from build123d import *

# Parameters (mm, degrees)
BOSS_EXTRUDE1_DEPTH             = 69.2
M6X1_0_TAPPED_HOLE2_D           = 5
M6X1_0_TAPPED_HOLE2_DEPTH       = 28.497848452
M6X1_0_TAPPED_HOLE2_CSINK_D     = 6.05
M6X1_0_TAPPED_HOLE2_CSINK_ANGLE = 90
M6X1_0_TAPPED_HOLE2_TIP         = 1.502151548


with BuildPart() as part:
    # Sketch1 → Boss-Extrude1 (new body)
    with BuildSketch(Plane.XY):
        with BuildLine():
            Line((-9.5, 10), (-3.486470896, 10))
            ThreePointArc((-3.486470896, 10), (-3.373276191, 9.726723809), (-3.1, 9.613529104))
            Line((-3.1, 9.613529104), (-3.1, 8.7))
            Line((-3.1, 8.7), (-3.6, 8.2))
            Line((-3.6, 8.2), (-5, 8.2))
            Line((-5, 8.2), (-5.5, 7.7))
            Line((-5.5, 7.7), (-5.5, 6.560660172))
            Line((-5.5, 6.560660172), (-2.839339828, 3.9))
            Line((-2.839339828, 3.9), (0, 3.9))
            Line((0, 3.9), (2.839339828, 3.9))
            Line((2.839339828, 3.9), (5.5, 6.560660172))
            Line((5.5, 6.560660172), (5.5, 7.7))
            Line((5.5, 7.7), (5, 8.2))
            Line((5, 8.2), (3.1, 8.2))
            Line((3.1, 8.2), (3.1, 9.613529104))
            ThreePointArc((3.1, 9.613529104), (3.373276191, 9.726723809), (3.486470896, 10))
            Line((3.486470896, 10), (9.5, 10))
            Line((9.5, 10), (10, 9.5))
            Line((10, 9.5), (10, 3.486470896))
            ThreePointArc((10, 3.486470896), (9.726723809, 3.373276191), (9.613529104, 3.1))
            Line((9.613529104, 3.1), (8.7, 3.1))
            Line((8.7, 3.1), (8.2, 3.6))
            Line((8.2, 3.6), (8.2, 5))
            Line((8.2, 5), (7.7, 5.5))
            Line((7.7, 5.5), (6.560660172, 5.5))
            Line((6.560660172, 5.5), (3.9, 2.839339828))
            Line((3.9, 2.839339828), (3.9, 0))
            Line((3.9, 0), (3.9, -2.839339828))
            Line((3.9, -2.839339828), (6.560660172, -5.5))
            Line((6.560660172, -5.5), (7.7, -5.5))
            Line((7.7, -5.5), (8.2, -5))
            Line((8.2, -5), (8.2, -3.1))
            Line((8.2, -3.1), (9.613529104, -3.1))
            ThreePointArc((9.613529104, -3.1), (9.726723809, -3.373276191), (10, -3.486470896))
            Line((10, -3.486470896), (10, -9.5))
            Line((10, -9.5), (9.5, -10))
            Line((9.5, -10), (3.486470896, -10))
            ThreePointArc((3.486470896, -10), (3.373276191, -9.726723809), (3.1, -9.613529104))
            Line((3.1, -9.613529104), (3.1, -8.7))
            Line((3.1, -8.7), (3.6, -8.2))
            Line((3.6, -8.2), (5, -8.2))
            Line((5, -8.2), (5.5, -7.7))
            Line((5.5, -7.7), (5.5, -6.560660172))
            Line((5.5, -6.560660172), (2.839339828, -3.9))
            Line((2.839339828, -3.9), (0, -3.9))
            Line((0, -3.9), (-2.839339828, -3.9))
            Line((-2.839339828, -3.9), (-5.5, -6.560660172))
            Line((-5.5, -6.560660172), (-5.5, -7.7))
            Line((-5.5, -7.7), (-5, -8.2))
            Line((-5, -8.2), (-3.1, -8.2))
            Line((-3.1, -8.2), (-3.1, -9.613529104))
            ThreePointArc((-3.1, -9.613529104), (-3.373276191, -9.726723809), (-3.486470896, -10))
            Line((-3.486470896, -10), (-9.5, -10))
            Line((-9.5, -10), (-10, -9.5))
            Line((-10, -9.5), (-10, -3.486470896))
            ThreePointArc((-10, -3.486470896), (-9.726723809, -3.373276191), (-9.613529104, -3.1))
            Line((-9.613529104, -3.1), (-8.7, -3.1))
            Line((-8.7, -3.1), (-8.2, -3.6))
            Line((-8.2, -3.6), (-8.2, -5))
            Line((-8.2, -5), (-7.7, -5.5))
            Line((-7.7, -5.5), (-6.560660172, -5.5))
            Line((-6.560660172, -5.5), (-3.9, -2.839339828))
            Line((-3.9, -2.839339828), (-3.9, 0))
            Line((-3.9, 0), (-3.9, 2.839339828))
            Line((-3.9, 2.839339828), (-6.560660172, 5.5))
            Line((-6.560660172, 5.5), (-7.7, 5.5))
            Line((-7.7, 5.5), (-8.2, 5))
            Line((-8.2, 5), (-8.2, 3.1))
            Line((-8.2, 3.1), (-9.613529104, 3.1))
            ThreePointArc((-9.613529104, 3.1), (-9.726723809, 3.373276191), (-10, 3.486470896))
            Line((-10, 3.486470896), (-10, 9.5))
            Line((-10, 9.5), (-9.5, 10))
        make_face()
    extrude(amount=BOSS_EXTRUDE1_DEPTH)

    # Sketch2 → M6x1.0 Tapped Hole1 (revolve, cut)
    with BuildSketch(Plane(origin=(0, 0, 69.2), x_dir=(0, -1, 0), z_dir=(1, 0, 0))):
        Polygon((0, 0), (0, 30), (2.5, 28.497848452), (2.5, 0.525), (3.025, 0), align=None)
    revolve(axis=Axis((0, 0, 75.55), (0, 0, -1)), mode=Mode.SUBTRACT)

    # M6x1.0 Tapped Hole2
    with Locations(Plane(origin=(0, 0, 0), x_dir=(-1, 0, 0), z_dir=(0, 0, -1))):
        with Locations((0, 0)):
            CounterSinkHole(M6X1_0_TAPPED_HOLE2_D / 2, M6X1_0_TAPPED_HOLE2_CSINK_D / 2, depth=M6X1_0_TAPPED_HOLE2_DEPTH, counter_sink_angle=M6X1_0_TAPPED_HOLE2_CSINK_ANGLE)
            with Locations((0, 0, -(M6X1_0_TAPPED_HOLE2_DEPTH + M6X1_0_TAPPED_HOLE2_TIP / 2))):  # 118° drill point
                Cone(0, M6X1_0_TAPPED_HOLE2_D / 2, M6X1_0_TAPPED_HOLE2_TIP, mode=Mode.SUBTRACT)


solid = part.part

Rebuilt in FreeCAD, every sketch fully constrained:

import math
import FreeCAD as App
import Part
import Sketcher

V = App.Vector
Q = App.Units.Quantity


def add_polygon(sketch, points):
    """Adds a closed chain of lines whose ends are joined by coincident constraints."""
    first, n = sketch.GeometryCount, len(points)
    for a, b in zip(points, points[1:] + points[:1]):
        sketch.addGeometry(Part.LineSegment(App.Vector(*a, 0), App.Vector(*b, 0)), False)
    for i in range(n):
        sketch.addConstraint(Sketcher.Constraint("Coincident", first + i, 2, first + (i + 1) % n, 1))

doc = App.newDocument("Part")
body = doc.addObject("PartDesign::Body", "Body")

# Sketch on XY plane
sketch1 = body.newObject("Sketcher::SketchObject", "Sketch")
sketch1.AttachmentSupport = (doc.getObject("XY_Plane"), [""])
sketch1.MapMode = "FlatFace"
sketch1.addGeometry([
    Part.LineSegment(V(-3.49, 10, 0), V(-9.5, 10, 0)),  # 0
    Part.LineSegment(V(-9.5, 10, 0), V(-10, 9.5, 0)),  # 1
    Part.LineSegment(V(-10, 9.5, 0), V(-10, 3.49, 0)),  # 2
    Part.ArcOfCircle(Part.Circle(V(-10, 3.1, 0), V(0, 0, 1), 0.39), math.radians(0), math.radians(90)),  # 3
    Part.LineSegment(V(-9.61, 3.1, 0), V(-8.2, 3.1, 0)),  # 4
    Part.LineSegment(V(-8.2, 3.1, 0), V(-8.2, 5, 0)),  # 5
    Part.LineSegment(V(-8.2, 5, 0), V(-7.7, 5.5, 0)),  # 6
    Part.LineSegment(V(-7.7, 5.5, 0), V(-6.56, 5.5, 0)),  # 7
    Part.LineSegment(V(-6.56, 5.5, 0), V(-3.9, 2.84, 0)),  # 8
    Part.LineSegment(V(-3.9, 2.84, 0), V(-3.9, -2.84, 0)),  # 9
    Part.LineSegment(V(-3.9, -2.84, 0), V(-6.56, -5.5, 0)),  # 10
    Part.LineSegment(V(-6.56, -5.5, 0), V(-7.7, -5.5, 0)),  # 11
    Part.LineSegment(V(-7.7, -5.5, 0), V(-8.2, -5, 0)),  # 12
    Part.LineSegment(V(-8.2, -5, 0), V(-8.2, -3.6, 0)),  # 13
    Part.LineSegment(V(-8.2, -3.6, 0), V(-8.7, -3.1, 0)),  # 14
    Part.LineSegment(V(-8.7, -3.1, 0), V(-9.61, -3.1, 0)),  # 15
    Part.ArcOfCircle(Part.Circle(V(-10, -3.1, 0), V(0, 0, 1), 0.39), math.radians(-90), math.radians(0)),  # 16
    Part.LineSegment(V(-10, -3.49, 0), V(-10, -9.5, 0)),  # 17
    Part.LineSegment(V(-10, -9.5, 0), V(-9.5, -10, 0)),  # 18
    Part.LineSegment(V(-9.5, -10, 0), V(-3.49, -10, 0)),  # 19
    Part.ArcOfCircle(Part.Circle(V(-3.1, -10, 0), V(0, 0, 1), 0.39), math.radians(90), math.radians(180)),  # 20
    Part.LineSegment(V(-3.1, -9.61, 0), V(-3.1, -8.2, 0)),  # 21
    Part.LineSegment(V(-3.1, -8.2, 0), V(-5, -8.2, 0)),  # 22
    Part.LineSegment(V(-5, -8.2, 0), V(-5.5, -7.7, 0)),  # 23
    Part.LineSegment(V(-5.5, -7.7, 0), V(-5.5, -6.56, 0)),  # 24
    Part.LineSegment(V(-5.5, -6.56, 0), V(-2.84, -3.9, 0)),  # 25
    Part.LineSegment(V(-2.84, -3.9, 0), V(2.84, -3.9, 0)),  # 26
    Part.LineSegment(V(2.84, -3.9, 0), V(5.5, -6.56, 0)),  # 27
    Part.LineSegment(V(5.5, -6.56, 0), V(5.5, -7.7, 0)),  # 28
    Part.LineSegment(V(5.5, -7.7, 0), V(5, -8.2, 0)),  # 29
    Part.LineSegment(V(5, -8.2, 0), V(3.6, -8.2, 0)),  # 30
    Part.LineSegment(V(3.6, -8.2, 0), V(3.1, -8.7, 0)),  # 31
    Part.LineSegment(V(3.1, -8.7, 0), V(3.1, -9.61, 0)),  # 32
    Part.ArcOfCircle(Part.Circle(V(3.1, -10, 0), V(0, 0, 1), 0.39), math.radians(0), math.radians(90)),  # 33
    Part.LineSegment(V(3.49, -10, 0), V(9.5, -10, 0)),  # 34
    Part.LineSegment(V(9.5, -10, 0), V(10, -9.5, 0)),  # 35
    Part.LineSegment(V(10, -9.5, 0), V(10, -3.49, 0)),  # 36
    Part.ArcOfCircle(Part.Circle(V(10, -3.1, 0), V(0, 0, 1), 0.39), math.radians(-180), math.radians(-90)),  # 37
    Part.LineSegment(V(9.61, -3.1, 0), V(8.2, -3.1, 0)),  # 38
    Part.LineSegment(V(8.2, -3.1, 0), V(8.2, -5, 0)),  # 39
    Part.LineSegment(V(8.2, -5, 0), V(7.7, -5.5, 0)),  # 40
    Part.LineSegment(V(7.7, -5.5, 0), V(6.56, -5.5, 0)),  # 41
    Part.LineSegment(V(6.56, -5.5, 0), V(3.9, -2.84, 0)),  # 42
    Part.LineSegment(V(3.9, -2.84, 0), V(3.9, 2.84, 0)),  # 43
    Part.LineSegment(V(3.9, 2.84, 0), V(6.56, 5.5, 0)),  # 44
    Part.LineSegment(V(6.56, 5.5, 0), V(7.7, 5.5, 0)),  # 45
    Part.LineSegment(V(7.7, 5.5, 0), V(8.2, 5, 0)),  # 46
    Part.LineSegment(V(8.2, 5, 0), V(8.2, 3.6, 0)),  # 47
    Part.LineSegment(V(8.2, 3.6, 0), V(8.7, 3.1, 0)),  # 48
    Part.LineSegment(V(8.7, 3.1, 0), V(9.61, 3.1, 0)),  # 49
    Part.ArcOfCircle(Part.Circle(V(10, 3.1, 0), V(0, 0, 1), 0.39), math.radians(90), math.radians(180)),  # 50
    Part.LineSegment(V(10, 3.49, 0), V(10, 9.5, 0)),  # 51
    Part.LineSegment(V(10, 9.5, 0), V(9.5, 10, 0)),  # 52
    Part.LineSegment(V(9.5, 10, 0), V(3.49, 10, 0)),  # 53
    Part.ArcOfCircle(Part.Circle(V(3.1, 10, 0), V(0, 0, 1), 0.39), math.radians(-90), math.radians(0)),  # 54
    Part.LineSegment(V(3.1, 9.61, 0), V(3.1, 8.2, 0)),  # 55
    Part.LineSegment(V(3.1, 8.2, 0), V(5, 8.2, 0)),  # 56
    Part.LineSegment(V(5, 8.2, 0), V(5.5, 7.7, 0)),  # 57
    Part.LineSegment(V(5.5, 7.7, 0), V(5.5, 6.56, 0)),  # 58
    Part.LineSegment(V(5.5, 6.56, 0), V(2.84, 3.9, 0)),  # 59
    Part.LineSegment(V(2.84, 3.9, 0), V(-2.84, 3.9, 0)),  # 60
    Part.LineSegment(V(-2.84, 3.9, 0), V(-5.5, 6.56, 0)),  # 61
    Part.LineSegment(V(-5.5, 6.56, 0), V(-5.5, 7.7, 0)),  # 62
    Part.LineSegment(V(-5.5, 7.7, 0), V(-5, 8.2, 0)),  # 63
    Part.LineSegment(V(-5, 8.2, 0), V(-3.6, 8.2, 0)),  # 64
    Part.LineSegment(V(-3.6, 8.2, 0), V(-3.1, 8.7, 0)),  # 65
    Part.LineSegment(V(-3.1, 8.7, 0), V(-3.1, 9.61, 0)),  # 66
    Part.ArcOfCircle(Part.Circle(V(-3.1, 10, 0), V(0, 0, 1), 0.39), math.radians(-180), math.radians(-90)),  # 67
], False)
sketch1.addConstraint([
    Sketcher.Constraint("Coincident", 0, 2, 1, 1),
    Sketcher.Constraint("Coincident", 1, 2, 2, 1),
    Sketcher.Constraint("Coincident", 2, 2, 3, 2),
    Sketcher.Constraint("Coincident", 3, 1, 4, 1),
    Sketcher.Constraint("Coincident", 4, 2, 5, 1),
    Sketcher.Constraint("Coincident", 5, 2, 6, 1),
    Sketcher.Constraint("Coincident", 6, 2, 7, 1),
    Sketcher.Constraint("Coincident", 7, 2, 8, 1),
    Sketcher.Constraint("Coincident", 8, 2, 9, 1),
    Sketcher.Constraint("Coincident", 9, 2, 10, 1),
    Sketcher.Constraint("Coincident", 10, 2, 11, 1),
    Sketcher.Constraint("Coincident", 11, 2, 12, 1),
    Sketcher.Constraint("Coincident", 12, 2, 13, 1),
    Sketcher.Constraint("Coincident", 13, 2, 14, 1),
    Sketcher.Constraint("Coincident", 14, 2, 15, 1),
    Sketcher.Constraint("Coincident", 15, 2, 16, 2),
    Sketcher.Constraint("Coincident", 16, 1, 17, 1),
    Sketcher.Constraint("Coincident", 17, 2, 18, 1),
    Sketcher.Constraint("Coincident", 18, 2, 19, 1),
    Sketcher.Constraint("Coincident", 19, 2, 20, 2),
    Sketcher.Constraint("Coincident", 20, 1, 21, 1),
    Sketcher.Constraint("Coincident", 21, 2, 22, 1),
    Sketcher.Constraint("Coincident", 22, 2, 23, 1),
    Sketcher.Constraint("Coincident", 23, 2, 24, 1),
    Sketcher.Constraint("Coincident", 24, 2, 25, 1),
    Sketcher.Constraint("Coincident", 25, 2, 26, 1),
    Sketcher.Constraint("Coincident", 26, 2, 27, 1),
    Sketcher.Constraint("Coincident", 27, 2, 28, 1),
    Sketcher.Constraint("Coincident", 28, 2, 29, 1),
    Sketcher.Constraint("Coincident", 29, 2, 30, 1),
    Sketcher.Constraint("Coincident", 30, 2, 31, 1),
    Sketcher.Constraint("Coincident", 31, 2, 32, 1),
    Sketcher.Constraint("Coincident", 32, 2, 33, 2),
    Sketcher.Constraint("Coincident", 33, 1, 34, 1),
    Sketcher.Constraint("Coincident", 34, 2, 35, 1),
    Sketcher.Constraint("Coincident", 35, 2, 36, 1),
    Sketcher.Constraint("Coincident", 36, 2, 37, 2),
    Sketcher.Constraint("Coincident", 37, 1, 38, 1),
    Sketcher.Constraint("Coincident", 38, 2, 39, 1),
    Sketcher.Constraint("Coincident", 39, 2, 40, 1),
    Sketcher.Constraint("Coincident", 40, 2, 41, 1),
    Sketcher.Constraint("Coincident", 41, 2, 42, 1),
    Sketcher.Constraint("Coincident", 42, 2, 43, 1),
    Sketcher.Constraint("Coincident", 43, 2, 44, 1),
    Sketcher.Constraint("Coincident", 44, 2, 45, 1),
    Sketcher.Constraint("Coincident", 45, 2, 46, 1),
    Sketcher.Constraint("Coincident", 46, 2, 47, 1),
    Sketcher.Constraint("Coincident", 47, 2, 48, 1),
    Sketcher.Constraint("Coincident", 48, 2, 49, 1),
    Sketcher.Constraint("Coincident", 49, 2, 50, 2),
    Sketcher.Constraint("Coincident", 50, 1, 51, 1),
    Sketcher.Constraint("Coincident", 51, 2, 52, 1),
    Sketcher.Constraint("Coincident", 52, 2, 53, 1),
    Sketcher.Constraint("Coincident", 53, 2, 54, 2),
    Sketcher.Constraint("Coincident", 54, 1, 55, 1),
    Sketcher.Constraint("Coincident", 55, 2, 56, 1),
    Sketcher.Constraint("Coincident", 56, 2, 57, 1),
    Sketcher.Constraint("Coincident", 57, 2, 58, 1),
    Sketcher.Constraint("Coincident", 58, 2, 59, 1),
    Sketcher.Constraint("Coincident", 59, 2, 60, 1),
    Sketcher.Constraint("Coincident", 60, 2, 61, 1),
    Sketcher.Constraint("Coincident", 61, 2, 62, 1),
    Sketcher.Constraint("Coincident", 62, 2, 63, 1),
    Sketcher.Constraint("Coincident", 63, 2, 64, 1),
    Sketcher.Constraint("Coincident", 64, 2, 65, 1),
    Sketcher.Constraint("Coincident", 65, 2, 66, 1),
    Sketcher.Constraint("Coincident", 66, 2, 67, 2),
    Sketcher.Constraint("Coincident", 67, 1, 0, 1),
    Sketcher.Constraint("Horizontal", 0),
    Sketcher.Constraint("Vertical", 2),
    Sketcher.Constraint("Horizontal", 4),
    Sketcher.Constraint("Vertical", 5),
    Sketcher.Constraint("Horizontal", 7),
    Sketcher.Constraint("Vertical", 9),
    Sketcher.Constraint("Horizontal", 11),
    Sketcher.Constraint("Vertical", 13),
    Sketcher.Constraint("Horizontal", 15),
    Sketcher.Constraint("Vertical", 17),
    Sketcher.Constraint("Horizontal", 19),
    Sketcher.Constraint("Vertical", 21),
    Sketcher.Constraint("Horizontal", 22),
    Sketcher.Constraint("Vertical", 24),
    Sketcher.Constraint("Horizontal", 26),
    Sketcher.Constraint("Vertical", 28),
    Sketcher.Constraint("Horizontal", 30),
    Sketcher.Constraint("Vertical", 32),
    Sketcher.Constraint("Horizontal", 34),
    Sketcher.Constraint("Vertical", 36),
    Sketcher.Constraint("Horizontal", 38),
    Sketcher.Constraint("Vertical", 39),
    Sketcher.Constraint("Horizontal", 41),
    Sketcher.Constraint("Vertical", 43),
    Sketcher.Constraint("Horizontal", 45),
    Sketcher.Constraint("Vertical", 47),
    Sketcher.Constraint("Horizontal", 49),
    Sketcher.Constraint("Vertical", 51),
    Sketcher.Constraint("Horizontal", 53),
    Sketcher.Constraint("Vertical", 55),
    Sketcher.Constraint("Horizontal", 56),
    Sketcher.Constraint("Vertical", 58),
    Sketcher.Constraint("Horizontal", 60),
    Sketcher.Constraint("Vertical", 62),
    Sketcher.Constraint("Horizontal", 64),
    Sketcher.Constraint("Vertical", 66),
    Sketcher.Constraint("Equal", 3, 16),
    Sketcher.Constraint("Equal", 16, 20),
    Sketcher.Constraint("Equal", 20, 33),
    Sketcher.Constraint("Equal", 33, 37),
    Sketcher.Constraint("Equal", 37, 50),
    Sketcher.Constraint("Equal", 50, 54),
    Sketcher.Constraint("Equal", 54, 67),
    Sketcher.Constraint("Symmetric", 3, 3, 37, 3, -1, 1),
    Sketcher.Constraint("Symmetric", 16, 3, 50, 3, -1, 1),
    Sketcher.Constraint("Symmetric", 20, 3, 54, 3, -1, 1),
    Sketcher.Constraint("Symmetric", 33, 3, 67, 3, -1, 1),
    Sketcher.Constraint("Symmetric", 0, 2, 34, 2, -1, 1),
    Sketcher.Constraint("Symmetric", 1, 2, 35, 2, -1, 1),
    Sketcher.Constraint("Symmetric", 4, 2, 38, 2, -1, 1),
    Sketcher.Constraint("Symmetric", 6, 2, 40, 2, -1, 1),
    Sketcher.Constraint("Symmetric", 8, 2, 42, 2, -1, 1),
    Sketcher.Constraint("Symmetric", 10, 2, 44, 2, -1, 1),
    Sketcher.Constraint("Symmetric", 12, 2, 46, 2, -1, 1),
    Sketcher.Constraint("Symmetric", 14, 2, 48, 2, -1, 1),
    Sketcher.Constraint("Symmetric", 17, 2, 51, 2, -1, 1),
    Sketcher.Constraint("Symmetric", 18, 2, 52, 2, -1, 1),
    Sketcher.Constraint("Symmetric", 21, 2, 55, 2, -1, 1),
    Sketcher.Constraint("Symmetric", 23, 2, 57, 2, -1, 1),
    Sketcher.Constraint("Symmetric", 25, 2, 59, 2, -1, 1),
    Sketcher.Constraint("Symmetric", 27, 2, 61, 2, -1, 1),
    Sketcher.Constraint("Symmetric", 29, 2, 63, 2, -1, 1),
    Sketcher.Constraint("Symmetric", 31, 2, 65, 2, -1, 1),
    Sketcher.Constraint("Symmetric", 20, 3, 33, 3, -2),
    Sketcher.Constraint("Symmetric", 16, 3, 37, 3, -2),
    Sketcher.Constraint("Symmetric", 24, 2, 27, 2, -2),
    Sketcher.Constraint("Symmetric", 22, 2, 29, 2, -2),
    Sketcher.Constraint("Symmetric", 18, 2, 34, 2, -2),
    Sketcher.Constraint("Symmetric", 17, 2, 35, 2, -2),
    Sketcher.Constraint("Symmetric", 12, 2, 39, 2, -2),
    Sketcher.Constraint("Symmetric", 11, 2, 40, 2, -2),
    Sketcher.Constraint("Parallel", 1, 6),
    Sketcher.Constraint("Perpendicular", 6, 8),
    Sketcher.Constraint("Perpendicular", 8, 10),
    Sketcher.Constraint("Perpendicular", 10, 12),
    Sketcher.Constraint("Parallel", 12, 14),
    Sketcher.Constraint("Parallel", 14, 18),
    Sketcher.Constraint("Parallel", 18, 23),
    Sketcher.Constraint("Perpendicular", 23, 25),
    Sketcher.Constraint("Perpendicular", 25, 27),
    Sketcher.Constraint("Perpendicular", 27, 29),
    Sketcher.Constraint("Parallel", 29, 31),
    Sketcher.Constraint("Perpendicular", 40, 42),
    Sketcher.Constraint("Perpendicular", 42, 44),
    Sketcher.Constraint("Perpendicular", 44, 46),
    Sketcher.Constraint("Parallel", 46, 48),
    Sketcher.Constraint("Parallel", 52, 57),
    Sketcher.Constraint("Perpendicular", 57, 59),
    Sketcher.Constraint("Perpendicular", 59, 61),
    Sketcher.Constraint("Perpendicular", 61, 63),
    Sketcher.Constraint("Parallel", 63, 65),
    Sketcher.Constraint("Horizontal", 67, 3, 0, 2),
    Sketcher.Constraint("Horizontal", 50, 3, 3, 1),
    Sketcher.Constraint("Horizontal", 37, 3, 14, 2),
    Sketcher.Constraint("Horizontal", 9, 2, 42, 2),
    Sketcher.Constraint("Vertical", 16, 3, 1, 2),
    Sketcher.Constraint("Vertical", 67, 3, 20, 1),
    Sketcher.Constraint("Vertical", 54, 3, 31, 2),
    Sketcher.Constraint("Equal", 53, 2),
    Sketcher.Constraint("Equal", 56, 5),
    Sketcher.Constraint("Equal", 60, 9),
    Sketcher.Constraint("Equal", 64, 13),
    Sketcher.Constraint("Equal", 38, 21),
    Sketcher.Constraint("Equal", 45, 24),
    Sketcher.Constraint("Equal", 1, 6),
    Sketcher.Constraint("Equal", 12, 14),
    Sketcher.Constraint("Equal", 18, 23),
    Sketcher.Constraint("Equal", 10, 25),
    Sketcher.Constraint("DistanceX", 22, 2, 22, 1, 1.9),
    Sketcher.Constraint("DistanceX", 30, 2, 30, 1, 1.4),
    Sketcher.Constraint("DistanceX", 3, 3, -1, 1, 10.0),
    Sketcher.Constraint("DistanceY", -1, 1, 5, 2, 5.0),
    Sketcher.Constraint("DistanceX", 4, 2, -1, 1, 8.2),
    Sketcher.Constraint("DistanceX", 8, 2, -1, 1, 3.9),
    Sketcher.Constraint("Radius", 3, 0.386471),
    Sketcher.Constraint("DistanceX", 7, 1, 7, 2, 1.13934),
])
pad1 = body.newObject("PartDesign::Pad", "Pad")
pad1.Profile = sketch1
pad1.Length = 69.2

# Sketch on YZ plane
sketch2 = body.newObject("Sketcher::SketchObject", "Sketch001")
sketch2.AttachmentSupport = (doc.getObject("YZ_Plane"), [""])
sketch2.MapMode = "FlatFace"
add_polygon(sketch2, [(0, 39.2), (0, 69.2), (-3, 69.2), (-2.5, 68.7), (-2.5, 40.7)])  # lines 0-4
sketch2.addConstraint([
    Sketcher.Constraint("Vertical", 0),
    Sketcher.Constraint("Horizontal", 1),
    Sketcher.Constraint("Vertical", 3),
    Sketcher.Constraint("PointOnObject", 0, 2, -2),
    Sketcher.Constraint("DistanceY", 0, 1, 0, 2, 30.0),
    Sketcher.Constraint("Angle", 2, Q("-45 deg")),
    Sketcher.Constraint("Angle", 4, Q("-31 deg")),
    Sketcher.Constraint("DistanceY", -1, 1, 0, 2, 69.2),
    Sketcher.Constraint("DistanceX", 2, 2, -1, 1, 2.5),
    Sketcher.Constraint("DistanceX", 1, 2, 1, 1, 3.025),
])
groove = body.newObject("PartDesign::Groove", "Groove")
groove.Profile = sketch2
groove.ReferenceAxis = (sketch2, ["V_Axis"])
groove.Angle = 360

# Sketch on XY plane
sketch3 = body.newObject("Sketcher::SketchObject", "Sketch002")
sketch3.AttachmentSupport = (doc.getObject("XY_Plane"), [""])
sketch3.MapMode = "FlatFace"
sketch3.addGeometry(Part.Circle(V(0, 0, 0), V(0, 0, 1), 2.5), False)
sketch3.addConstraint([
    Sketcher.Constraint("Coincident", 0, 3, -1, 1),
    Sketcher.Constraint("Diameter", 0, 5.0),
])
doc.recompute()
hole = body.newObject("PartDesign::Hole", "Hole")
hole.Profile = sketch3
hole.ThreadType = "None"
hole.Diameter = 5
hole.DepthType = "Dimension"
hole.Depth = 28.497848
hole.DrillPoint = "Angled"
hole.DrillPointAngle = 118
hole.HoleCutType = "Countersink"
hole.HoleCutDiameter = 6.05
hole.HoleCutCountersinkAngle = 90
hole.Reversed = True

doc.recompute()
